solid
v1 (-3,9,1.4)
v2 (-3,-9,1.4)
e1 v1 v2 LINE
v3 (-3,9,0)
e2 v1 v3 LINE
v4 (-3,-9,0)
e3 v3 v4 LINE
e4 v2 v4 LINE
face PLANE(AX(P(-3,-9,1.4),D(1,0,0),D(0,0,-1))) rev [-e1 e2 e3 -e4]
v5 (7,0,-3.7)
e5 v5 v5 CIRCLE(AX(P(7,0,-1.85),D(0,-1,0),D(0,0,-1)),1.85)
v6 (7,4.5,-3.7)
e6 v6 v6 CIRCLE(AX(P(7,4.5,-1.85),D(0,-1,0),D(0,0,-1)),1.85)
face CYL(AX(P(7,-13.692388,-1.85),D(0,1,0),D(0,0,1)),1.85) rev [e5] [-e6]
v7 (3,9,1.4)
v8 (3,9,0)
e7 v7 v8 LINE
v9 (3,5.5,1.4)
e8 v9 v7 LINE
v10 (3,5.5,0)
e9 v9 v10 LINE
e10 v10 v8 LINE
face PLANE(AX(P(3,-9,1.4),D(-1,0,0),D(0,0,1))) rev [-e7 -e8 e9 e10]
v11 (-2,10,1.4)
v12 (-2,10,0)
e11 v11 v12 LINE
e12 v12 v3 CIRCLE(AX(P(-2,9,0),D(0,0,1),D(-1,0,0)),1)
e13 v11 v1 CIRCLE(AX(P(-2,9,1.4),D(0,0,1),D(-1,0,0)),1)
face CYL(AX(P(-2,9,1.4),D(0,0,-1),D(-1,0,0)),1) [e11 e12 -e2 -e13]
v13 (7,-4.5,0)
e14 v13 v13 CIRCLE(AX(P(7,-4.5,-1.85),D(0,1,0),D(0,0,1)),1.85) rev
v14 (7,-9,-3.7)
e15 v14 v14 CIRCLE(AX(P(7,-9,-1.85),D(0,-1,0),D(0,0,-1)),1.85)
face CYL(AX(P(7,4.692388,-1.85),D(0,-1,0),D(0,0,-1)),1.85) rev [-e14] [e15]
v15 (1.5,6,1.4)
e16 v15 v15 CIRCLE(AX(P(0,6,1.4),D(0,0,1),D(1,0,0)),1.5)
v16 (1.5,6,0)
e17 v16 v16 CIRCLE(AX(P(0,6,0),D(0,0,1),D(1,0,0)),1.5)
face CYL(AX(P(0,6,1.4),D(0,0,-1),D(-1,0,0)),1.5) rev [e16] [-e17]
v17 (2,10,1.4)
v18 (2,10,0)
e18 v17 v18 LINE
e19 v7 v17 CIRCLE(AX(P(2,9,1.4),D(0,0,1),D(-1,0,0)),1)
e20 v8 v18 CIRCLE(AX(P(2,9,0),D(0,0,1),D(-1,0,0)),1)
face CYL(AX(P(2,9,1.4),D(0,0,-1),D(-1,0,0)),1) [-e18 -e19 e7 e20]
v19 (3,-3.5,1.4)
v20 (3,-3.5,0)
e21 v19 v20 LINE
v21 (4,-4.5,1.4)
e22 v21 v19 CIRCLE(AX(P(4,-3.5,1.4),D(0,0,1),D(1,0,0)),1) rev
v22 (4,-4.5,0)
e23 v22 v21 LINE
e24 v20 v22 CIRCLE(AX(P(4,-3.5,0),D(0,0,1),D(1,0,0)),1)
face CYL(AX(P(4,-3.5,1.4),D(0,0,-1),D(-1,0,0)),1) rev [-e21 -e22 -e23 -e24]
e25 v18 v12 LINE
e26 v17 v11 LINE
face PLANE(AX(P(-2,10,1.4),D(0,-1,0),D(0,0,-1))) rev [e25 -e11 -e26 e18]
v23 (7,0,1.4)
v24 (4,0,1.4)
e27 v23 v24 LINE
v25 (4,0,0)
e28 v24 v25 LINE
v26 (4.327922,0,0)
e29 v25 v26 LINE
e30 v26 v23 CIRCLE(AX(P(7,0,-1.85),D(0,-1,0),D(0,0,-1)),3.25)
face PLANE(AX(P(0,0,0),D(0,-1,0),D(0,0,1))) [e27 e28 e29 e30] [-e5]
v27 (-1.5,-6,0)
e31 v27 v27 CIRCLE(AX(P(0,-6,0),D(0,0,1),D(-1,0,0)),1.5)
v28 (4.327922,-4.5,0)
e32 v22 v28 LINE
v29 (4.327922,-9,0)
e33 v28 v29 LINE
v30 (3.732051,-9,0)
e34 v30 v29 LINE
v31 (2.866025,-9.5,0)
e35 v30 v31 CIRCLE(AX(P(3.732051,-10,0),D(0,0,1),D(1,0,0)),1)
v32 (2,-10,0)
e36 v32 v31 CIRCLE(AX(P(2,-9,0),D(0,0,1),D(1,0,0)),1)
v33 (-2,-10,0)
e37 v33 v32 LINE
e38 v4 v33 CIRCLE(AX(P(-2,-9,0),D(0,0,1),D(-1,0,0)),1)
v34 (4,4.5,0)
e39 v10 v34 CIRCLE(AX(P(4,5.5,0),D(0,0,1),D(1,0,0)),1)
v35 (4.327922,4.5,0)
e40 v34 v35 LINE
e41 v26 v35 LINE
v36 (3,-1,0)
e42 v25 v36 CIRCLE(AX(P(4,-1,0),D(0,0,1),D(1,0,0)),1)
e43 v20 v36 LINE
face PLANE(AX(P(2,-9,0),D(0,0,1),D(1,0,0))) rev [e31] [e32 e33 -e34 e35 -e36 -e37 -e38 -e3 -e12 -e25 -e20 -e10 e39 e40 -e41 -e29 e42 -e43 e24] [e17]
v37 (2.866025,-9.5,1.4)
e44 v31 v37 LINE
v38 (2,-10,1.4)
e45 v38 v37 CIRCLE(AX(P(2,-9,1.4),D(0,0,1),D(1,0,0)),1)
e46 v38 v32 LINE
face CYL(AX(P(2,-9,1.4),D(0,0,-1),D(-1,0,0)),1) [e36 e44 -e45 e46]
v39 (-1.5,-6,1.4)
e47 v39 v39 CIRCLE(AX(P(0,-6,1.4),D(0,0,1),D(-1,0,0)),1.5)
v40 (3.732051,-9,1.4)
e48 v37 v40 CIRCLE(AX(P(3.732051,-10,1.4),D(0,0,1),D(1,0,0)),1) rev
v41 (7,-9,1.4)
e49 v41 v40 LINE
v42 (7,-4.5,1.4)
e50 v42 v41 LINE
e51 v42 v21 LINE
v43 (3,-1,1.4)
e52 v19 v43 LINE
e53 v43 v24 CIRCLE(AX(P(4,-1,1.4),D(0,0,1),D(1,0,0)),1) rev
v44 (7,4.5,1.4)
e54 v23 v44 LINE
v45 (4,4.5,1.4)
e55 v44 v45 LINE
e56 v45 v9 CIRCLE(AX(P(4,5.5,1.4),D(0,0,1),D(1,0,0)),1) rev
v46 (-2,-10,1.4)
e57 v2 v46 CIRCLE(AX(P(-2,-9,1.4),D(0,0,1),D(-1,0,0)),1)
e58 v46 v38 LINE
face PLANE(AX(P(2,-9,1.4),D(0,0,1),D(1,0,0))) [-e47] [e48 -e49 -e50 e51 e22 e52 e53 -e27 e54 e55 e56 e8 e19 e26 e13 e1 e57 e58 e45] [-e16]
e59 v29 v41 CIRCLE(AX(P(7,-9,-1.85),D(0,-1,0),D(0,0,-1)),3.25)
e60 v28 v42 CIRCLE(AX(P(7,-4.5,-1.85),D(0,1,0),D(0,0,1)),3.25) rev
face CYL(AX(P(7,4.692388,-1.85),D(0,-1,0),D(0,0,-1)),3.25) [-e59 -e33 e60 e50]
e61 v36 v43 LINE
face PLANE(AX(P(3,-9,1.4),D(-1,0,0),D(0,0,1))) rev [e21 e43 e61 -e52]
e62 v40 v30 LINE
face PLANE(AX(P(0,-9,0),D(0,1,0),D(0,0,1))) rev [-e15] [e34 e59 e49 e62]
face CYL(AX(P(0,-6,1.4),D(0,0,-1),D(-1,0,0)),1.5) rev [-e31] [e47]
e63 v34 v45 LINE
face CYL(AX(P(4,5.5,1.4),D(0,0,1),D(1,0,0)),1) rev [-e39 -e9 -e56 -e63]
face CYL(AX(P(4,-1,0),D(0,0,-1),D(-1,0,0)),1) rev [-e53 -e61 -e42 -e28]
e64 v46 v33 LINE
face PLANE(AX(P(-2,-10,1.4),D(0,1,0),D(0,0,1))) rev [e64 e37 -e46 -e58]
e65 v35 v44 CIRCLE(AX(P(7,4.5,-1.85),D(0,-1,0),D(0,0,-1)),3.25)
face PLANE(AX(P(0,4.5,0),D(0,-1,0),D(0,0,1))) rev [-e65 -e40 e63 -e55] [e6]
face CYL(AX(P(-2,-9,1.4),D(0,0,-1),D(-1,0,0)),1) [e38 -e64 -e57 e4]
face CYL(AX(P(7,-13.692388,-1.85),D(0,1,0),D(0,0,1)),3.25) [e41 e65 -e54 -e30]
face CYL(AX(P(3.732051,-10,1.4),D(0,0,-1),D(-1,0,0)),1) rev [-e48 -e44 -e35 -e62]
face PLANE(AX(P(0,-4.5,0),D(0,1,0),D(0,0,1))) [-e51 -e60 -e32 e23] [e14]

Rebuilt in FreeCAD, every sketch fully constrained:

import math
import FreeCAD as App
import Part
import Sketcher
Q = App.Units.Quantity


def edges_at(feature, points):
    """Names of the edges that pass closest to the given points."""
    edges = feature.Shape.Edges
    near = lambda p: min(range(len(edges)), key=lambda i: edges[i].distToShape(Part.Vertex(*p))[0])
    return sorted({f"Edge{near(p) + 1}" for p in points})


def add_polygon(sketch, points):
    """Adds a closed chain of lines whose ends are joined by coincident constraints."""
    first, n = sketch.GeometryCount, len(points)
    for a, b in zip(points, points[1:] + points[:1]):
        sketch.addGeometry(Part.LineSegment(App.Vector(*a, 0), App.Vector(*b, 0)), False)
    for i in range(n):
        sketch.addConstraint(Sketcher.Constraint("Coincident", first + i, 2, first + (i + 1) % n, 1))

doc = App.newDocument("Part")
body = doc.addObject("PartDesign::Body", "Body")

sketch1 = body.newObject("Sketcher::SketchObject", "Sketch")
sketch1.AttachmentSupport = (doc.getObject("XY_Plane"), [""])
sketch1.MapMode = "FlatFace"
sketch1.addGeometry([
    Part.LineSegment(App.Vector(-2, -10, 0), App.Vector(2, -10, 0)),
    Part.ArcOfCircle(Part.Circle(App.Vector(2, -9, 0), App.Vector(0, 0, 1), 1), math.radians(-90), math.radians(0)),
    Part.LineSegment(App.Vector(3, -9, 0), App.Vector(3, 9, 0)),
    Part.ArcOfCircle(Part.Circle(App.Vector(2, 9, 0), App.Vector(0, 0, 1), 1), math.radians(0), math.radians(90)),
    Part.LineSegment(App.Vector(2, 10, 0), App.Vector(-2, 10, 0)),
    Part.ArcOfCircle(Part.Circle(App.Vector(-2, 9, 0), App.Vector(0, 0, 1), 1), math.radians(90), math.radians(180)),
    Part.LineSegment(App.Vector(-3, 9, 0), App.Vector(-3, -9, 0)),
    Part.ArcOfCircle(Part.Circle(App.Vector(-2, -9, 0), App.Vector(0, 0, 1), 1), math.radians(-180), math.radians(-90)),
    Part.Circle(App.Vector(0, -6, 0), App.Vector(0, 0, 1), 1.5),
    Part.Circle(App.Vector(0, 6, 0), App.Vector(0, 0, 1), 1.5),
], False)
sketch1.addConstraint([
    Sketcher.Constraint("Tangent", 0, 2, 1, 1),
    Sketcher.Constraint("Tangent", 1, 2, 2, 1),
    Sketcher.Constraint("Tangent", 2, 2, 3, 1),
    Sketcher.Constraint("Tangent", 3, 2, 4, 1),
    Sketcher.Constraint("Tangent", 4, 2, 5, 1),
    Sketcher.Constraint("Tangent", 5, 2, 6, 1),
    Sketcher.Constraint("Tangent", 6, 2, 7, 1),
    Sketcher.Constraint("Tangent", 7, 2, 0, 1),
    Sketcher.Constraint("Horizontal", 0),
    Sketcher.Constraint("Vertical", 2),
    Sketcher.Constraint("Horizontal", 4),
    Sketcher.Constraint("Vertical", 6),
    Sketcher.Constraint("Equal", 1, 3),
    Sketcher.Constraint("Equal", 3, 5),
    Sketcher.Constraint("Equal", 5, 7),
    Sketcher.Constraint("Equal", 8, 9),
    Sketcher.Constraint("Symmetric", 1, 3, 5, 3, -1, 1),
    Sketcher.Constraint("Symmetric", 8, 3, 9, 3, -1, 1),
    Sketcher.Constraint("PointOnObject", 8, 3, -2),
    Sketcher.Constraint("Diameter", 8, Q("3 mm")),
    Sketcher.Constraint("Radius", 1, Q("1 mm")),
    Sketcher.Constraint("DistanceX", 0, 1, 0, 2, Q("4 mm")),
    Sketcher.Constraint("DistanceY", 2, 1, 2, 2, Q("18 mm")),
    Sketcher.Constraint("DistanceY", 8, 3, -1, 1, Q("6 mm")),
])
pad1 = body.newObject("PartDesign::Pad", "Pad")
pad1.Profile = sketch1
pad1.Length = 1.4

sketch2 = body.newObject("Sketcher::SketchObject", "Sketch001")
sketch2.AttachmentSupport = (doc.getObject("XZ_Plane"), [""])
sketch2.MapMode = "FlatFace"
sketch2.AttachmentOffset = App.Placement(App.Vector(0, 0, 9), App.Rotation())
add_polygon(sketch2, [(7, 0), (7, 1.4), (3, 1.4), (3, 0)])
sketch2.addConstraint([
    Sketcher.Constraint("Vertical", 0),
    Sketcher.Constraint("Horizontal", 1),
    Sketcher.Constraint("Vertical", 2),
    Sketcher.Constraint("Horizontal", 3),
    Sketcher.Constraint("PointOnObject", 2, 2, -1),
    Sketcher.Constraint("DistanceX", 1, 2, 1, 1, Q("4 mm")),
    Sketcher.Constraint("DistanceY", 0, 1, 0, 2, Q("1.4 mm")),
    Sketcher.Constraint("DistanceX", -1, 1, 0, 2, Q("7 mm")),
])
pad2 = body.newObject("PartDesign::Pad", "Pad001")
pad2.Profile = sketch2
pad2.Length = 4.5
pad2.Reversed = True

sketch3 = body.newObject("Sketcher::SketchObject", "Sketch002")
sketch3.AttachmentSupport = (doc.getObject("XZ_Plane"), [""])
sketch3.MapMode = "FlatFace"
sketch3.AttachmentOffset = App.Placement(App.Vector(0, 0, 9), App.Rotation())
sketch3.addGeometry([
    Part.Circle(App.Vector(7, -1.9, 0), App.Vector(0, 0, 1), 3.2),
    Part.Circle(App.Vector(7, -1.9, 0), App.Vector(0, 0, 1), 1.9),
], False)
sketch3.addConstraint([
    Sketcher.Constraint("Coincident", 1, 3, 0, 3),
    Sketcher.Constraint("Diameter", 0, Q("6.5 mm")),
    Sketcher.Constraint("Diameter", 1, Q("3.7 mm")),
    Sketcher.Constraint("DistanceX", -1, 1, 0, 3, Q("7 mm")),
    Sketcher.Constraint("DistanceY", 0, 3, -1, 1, Q("1.85 mm")),
])
pad3 = body.newObject("PartDesign::Pad", "Pad002")
pad3.Profile = sketch3
pad3.Length = 4.5
pad3.Reversed = True
doc.recompute()

datumplane = body.newObject("PartDesign::Plane", "DatumPlane")
datumplane.AttachmentSupport = (doc.getObject("XZ_Plane"), [""])
datumplane.MapMode = "FlatFace"
datumplane.AttachmentOffset = App.Placement(App.Vector(0, 0, 2.25), App.Rotation())
mirrored = body.newObject("PartDesign::Mirrored", "Mirrored")
mirrored.Originals = [pad2, pad3]
mirrored.MirrorPlane = (datumplane, [""])
body.Tip = mirrored
doc.recompute()

fillet = body.newObject("PartDesign::Fillet", "Fillet")
fillet.Base = (mirrored, edges_at(mirrored, [
    (3, -9, 0.7),
    (3, -4.5, 0.7),
    (3, 4.5, 0.7),
    (3, 0, 0.7),
]))
fillet.Radius = 1

doc.recompute()
